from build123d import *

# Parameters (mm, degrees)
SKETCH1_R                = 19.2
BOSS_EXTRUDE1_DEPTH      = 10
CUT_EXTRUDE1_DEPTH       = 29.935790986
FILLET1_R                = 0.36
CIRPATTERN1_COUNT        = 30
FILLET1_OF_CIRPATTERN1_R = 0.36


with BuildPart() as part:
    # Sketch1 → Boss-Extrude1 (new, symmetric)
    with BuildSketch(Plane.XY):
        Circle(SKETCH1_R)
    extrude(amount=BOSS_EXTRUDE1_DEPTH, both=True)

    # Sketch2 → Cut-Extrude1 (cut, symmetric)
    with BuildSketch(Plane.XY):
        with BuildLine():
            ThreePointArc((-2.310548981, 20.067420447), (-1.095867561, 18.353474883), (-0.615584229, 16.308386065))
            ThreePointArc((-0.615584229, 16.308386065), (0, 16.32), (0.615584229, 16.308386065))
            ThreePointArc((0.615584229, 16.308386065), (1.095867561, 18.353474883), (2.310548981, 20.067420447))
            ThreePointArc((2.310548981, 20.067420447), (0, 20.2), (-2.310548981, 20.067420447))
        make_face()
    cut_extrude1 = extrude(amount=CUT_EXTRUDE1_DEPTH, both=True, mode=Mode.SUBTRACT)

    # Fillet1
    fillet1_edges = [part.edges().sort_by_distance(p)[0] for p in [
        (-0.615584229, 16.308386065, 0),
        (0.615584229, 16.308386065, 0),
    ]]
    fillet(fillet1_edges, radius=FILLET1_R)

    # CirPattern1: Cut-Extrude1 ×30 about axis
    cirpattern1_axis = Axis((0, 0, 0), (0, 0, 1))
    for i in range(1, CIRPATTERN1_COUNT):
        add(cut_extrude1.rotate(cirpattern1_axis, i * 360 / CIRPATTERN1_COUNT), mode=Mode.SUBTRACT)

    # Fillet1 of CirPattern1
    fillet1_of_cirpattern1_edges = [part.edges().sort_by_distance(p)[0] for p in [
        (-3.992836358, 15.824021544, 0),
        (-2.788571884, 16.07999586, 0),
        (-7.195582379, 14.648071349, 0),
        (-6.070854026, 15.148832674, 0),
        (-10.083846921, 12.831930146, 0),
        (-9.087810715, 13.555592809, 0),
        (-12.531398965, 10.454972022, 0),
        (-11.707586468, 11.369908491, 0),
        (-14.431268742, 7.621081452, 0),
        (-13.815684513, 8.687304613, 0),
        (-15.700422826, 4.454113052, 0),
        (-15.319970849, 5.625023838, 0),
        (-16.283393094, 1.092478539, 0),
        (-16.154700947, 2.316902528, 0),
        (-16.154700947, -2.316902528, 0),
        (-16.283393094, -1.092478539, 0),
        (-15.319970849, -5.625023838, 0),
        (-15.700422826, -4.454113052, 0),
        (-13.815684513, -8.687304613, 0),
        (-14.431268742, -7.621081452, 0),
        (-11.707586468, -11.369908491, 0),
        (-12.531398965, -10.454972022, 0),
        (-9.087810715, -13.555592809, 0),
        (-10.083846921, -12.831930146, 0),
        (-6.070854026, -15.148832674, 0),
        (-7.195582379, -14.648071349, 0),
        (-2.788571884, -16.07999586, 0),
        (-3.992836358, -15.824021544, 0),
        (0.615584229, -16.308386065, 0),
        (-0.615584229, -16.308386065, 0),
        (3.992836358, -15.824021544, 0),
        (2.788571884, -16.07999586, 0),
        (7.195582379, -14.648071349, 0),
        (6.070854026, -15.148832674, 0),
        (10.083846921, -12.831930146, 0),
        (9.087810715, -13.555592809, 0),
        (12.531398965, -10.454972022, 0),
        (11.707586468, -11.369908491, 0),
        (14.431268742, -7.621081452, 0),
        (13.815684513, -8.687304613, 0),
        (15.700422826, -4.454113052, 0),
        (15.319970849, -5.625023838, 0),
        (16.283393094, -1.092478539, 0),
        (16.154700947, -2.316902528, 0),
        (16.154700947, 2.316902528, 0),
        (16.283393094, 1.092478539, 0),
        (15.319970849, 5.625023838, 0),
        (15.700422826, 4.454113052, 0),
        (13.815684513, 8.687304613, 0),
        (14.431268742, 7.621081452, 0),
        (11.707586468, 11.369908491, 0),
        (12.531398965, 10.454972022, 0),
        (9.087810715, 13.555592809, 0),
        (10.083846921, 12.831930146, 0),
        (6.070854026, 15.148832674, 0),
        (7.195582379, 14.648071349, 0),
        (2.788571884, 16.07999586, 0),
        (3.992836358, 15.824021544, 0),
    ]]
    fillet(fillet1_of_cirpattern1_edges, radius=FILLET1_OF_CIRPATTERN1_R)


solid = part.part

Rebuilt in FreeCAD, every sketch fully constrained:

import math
import FreeCAD as App
import Part
import Sketcher

V = App.Vector
Q = App.Units.Quantity


def edges_at(feature, points):
    """Names of the edges that pass closest to the given points."""
    edges = feature.Shape.Edges
    near = lambda p: min(range(len(edges)), key=lambda i: edges[i].distToShape(Part.Vertex(*p))[0])
    return sorted({f"Edge{near(p) + 1}" for p in points})

doc = App.newDocument("Part")
body = doc.addObject("PartDesign::Body", "Body")

# Sketch on XY plane
sketch1 = body.newObject("Sketcher::SketchObject", "Sketch")
sketch1.AttachmentSupport = (doc.getObject("XY_Plane"), [""])
sketch1.MapMode = "FlatFace"
sketch1.addGeometry(Part.Circle(V(0, 0, 0), V(0, 0, 1), 19.2), False)
sketch1.addConstraint(Sketcher.Constraint("Coincident", 0, 3, -1, 1))
sketch1.addConstraint(Sketcher.Constraint("Diameter", 0, Q("38.4 mm")))
pad1 = body.newObject("PartDesign::Pad", "Pad")
pad1.Profile = sketch1
pad1.Length = 20
pad1.Midplane = True

# Sketch on XY plane
sketch2 = body.newObject("Sketcher::SketchObject", "Sketch001")
sketch2.AttachmentSupport = (doc.getObject("XY_Plane"), [""])
sketch2.MapMode = "FlatFace"
sketch2.addGeometry(Part.ArcOfCircle(Part.Circle(V(-6.089644, 16.10176, 0), V(0, 0, 1), 5.477958), math.radians(2.161688), math.radians(46.379948)), False)
sketch2.addGeometry(Part.ArcOfCircle(Part.Circle(V(0, 0.000001, 0), V(0, 0, 1), 16.319999), math.radians(87.838312), math.radians(92.161688)), False)
sketch2.addGeometry(Part.ArcOfCircle(Part.Circle(V(6.089644, 16.10176, 0), V(0, 0, 1), 5.477958), math.radians(133.620052), math.radians(177.838312)), False)
sketch2.addGeometry(Part.ArcOfCircle(Part.Circle(V(0, 0, 0), V(0, 0, 1), 20.2), math.radians(83.431926), math.radians(96.568074)), False)
sketch2.addConstraint(Sketcher.Constraint("Coincident", 0, 1, 1, 2))
sketch2.addConstraint(Sketcher.Constraint("Coincident", 1, 1, 2, 2))
sketch2.addConstraint(Sketcher.Constraint("Coincident", 2, 1, 3, 1))
sketch2.addConstraint(Sketcher.Constraint("Coincident", 3, 2, 0, 2))
sketch2.addConstraint(Sketcher.Constraint("Coincident", 1, 3, -1, 1))
sketch2.addConstraint(Sketcher.Constraint("Coincident", 3, 3, -1, 1))
sketch2.addConstraint(Sketcher.Constraint("Equal", 0, 2))
sketch2.addConstraint(Sketcher.Constraint("Symmetric", 0, 3, 2, 3, -2))
sketch2.addConstraint(Sketcher.Constraint("Radius", 3, Q("20.2 mm")))
sketch2.addConstraint(Sketcher.Constraint("Radius", 1, Q("16.319999 mm")))
sketch2.addConstraint(Sketcher.Constraint("Radius", 0, Q("5.477958 mm")))
sketch2.addConstraint(Sketcher.Constraint("DistanceY", -1, 1, 0, 3, Q("16.10176 mm")))
sketch2.addConstraint(Sketcher.Constraint("DistanceX", -1, 1, 2, 1, Q("2.310549 mm")))
pocket1 = body.newObject("PartDesign::Pocket", "Pocket")
pocket1.Profile = sketch2
pocket1.Length = 59.871582
pocket1.Midplane = True
doc.recompute()

fillet = body.newObject("PartDesign::Fillet", "Fillet")
fillet.Base = (pocket1, edges_at(pocket1, [(-0.616, 16.308, 0), (0.616, 16.308, 0)]))
fillet.Radius = 0.36
doc.recompute()

polarpattern = body.newObject("PartDesign::PolarPattern", "PolarPattern")
polarpattern.Originals = [pocket1]
polarpattern.Axis = (doc.getObject("Z_Axis"), [""])
polarpattern.Angle = 360
polarpattern.Occurrences = 30
body.Tip = polarpattern
doc.recompute()

fillet2 = body.newObject("PartDesign::Fillet", "Fillet001")
fillet2.Base = (polarpattern, edges_at(polarpattern, [
    (-3.993, 15.824, 0),
    (-2.789, 16.08, 0),
    (-7.196, 14.648, 0),
    (-6.071, 15.149, 0),
    (-10.084, 12.832, 0),
    (-9.088, 13.556, 0),
    (-12.531, 10.455, 0),
    (-11.708, 11.37, 0),
    (-14.431, 7.621, 0),
    (-13.816, 8.687, 0),
    (-15.7, 4.454, 0),
    (-15.32, 5.625, 0),
    (-16.283, 1.092, 0),
    (-16.155, 2.317, 0),
    (-16.155, -2.317, 0),
    (-16.283, -1.092, 0),
    (-15.32, -5.625, 0),
    (-15.7, -4.454, 0),
    (-13.816, -8.687, 0),
    (-14.431, -7.621, 0),
    (-11.708, -11.37, 0),
    (-12.531, -10.455, 0),
    (-9.088, -13.556, 0),
    (-10.084, -12.832, 0),
    (-6.071, -15.149, 0),
    (-7.196, -14.648, 0),
    (-2.789, -16.08, 0),
    (-3.993, -15.824, 0),
    (0.616, -16.308, 0),
    (-0.616, -16.308, 0),
    (3.993, -15.824, 0),
    (2.789, -16.08, 0),
    (7.196, -14.648, 0),
    (6.071, -15.149, 0),
    (10.084, -12.832, 0),
    (9.088, -13.556, 0),
    (12.531, -10.455, 0),
    (11.708, -11.37, 0),
    (14.431, -7.621, 0),
    (13.816, -8.687, 0),
    (15.7, -4.454, 0),
    (15.32, -5.625, 0),
    (16.283, -1.092, 0),
    (16.155, -2.317, 0),
    (16.155, 2.317, 0),
    (16.283, 1.092, 0),
    (15.32, 5.625, 0),
    (15.7, 4.454, 0),
    (13.816, 8.687, 0),
    (14.431, 7.621, 0),
    (11.708, 11.37, 0),
    (12.531, 10.455, 0),
    (9.088, 13.556, 0),
    (10.084, 12.832, 0),
    (6.071, 15.149, 0),
    (7.196, 14.648, 0),
    (2.789, 16.08, 0),
    (3.993, 15.824, 0),
]))
fillet2.Radius = 0.36

doc.recompute()
